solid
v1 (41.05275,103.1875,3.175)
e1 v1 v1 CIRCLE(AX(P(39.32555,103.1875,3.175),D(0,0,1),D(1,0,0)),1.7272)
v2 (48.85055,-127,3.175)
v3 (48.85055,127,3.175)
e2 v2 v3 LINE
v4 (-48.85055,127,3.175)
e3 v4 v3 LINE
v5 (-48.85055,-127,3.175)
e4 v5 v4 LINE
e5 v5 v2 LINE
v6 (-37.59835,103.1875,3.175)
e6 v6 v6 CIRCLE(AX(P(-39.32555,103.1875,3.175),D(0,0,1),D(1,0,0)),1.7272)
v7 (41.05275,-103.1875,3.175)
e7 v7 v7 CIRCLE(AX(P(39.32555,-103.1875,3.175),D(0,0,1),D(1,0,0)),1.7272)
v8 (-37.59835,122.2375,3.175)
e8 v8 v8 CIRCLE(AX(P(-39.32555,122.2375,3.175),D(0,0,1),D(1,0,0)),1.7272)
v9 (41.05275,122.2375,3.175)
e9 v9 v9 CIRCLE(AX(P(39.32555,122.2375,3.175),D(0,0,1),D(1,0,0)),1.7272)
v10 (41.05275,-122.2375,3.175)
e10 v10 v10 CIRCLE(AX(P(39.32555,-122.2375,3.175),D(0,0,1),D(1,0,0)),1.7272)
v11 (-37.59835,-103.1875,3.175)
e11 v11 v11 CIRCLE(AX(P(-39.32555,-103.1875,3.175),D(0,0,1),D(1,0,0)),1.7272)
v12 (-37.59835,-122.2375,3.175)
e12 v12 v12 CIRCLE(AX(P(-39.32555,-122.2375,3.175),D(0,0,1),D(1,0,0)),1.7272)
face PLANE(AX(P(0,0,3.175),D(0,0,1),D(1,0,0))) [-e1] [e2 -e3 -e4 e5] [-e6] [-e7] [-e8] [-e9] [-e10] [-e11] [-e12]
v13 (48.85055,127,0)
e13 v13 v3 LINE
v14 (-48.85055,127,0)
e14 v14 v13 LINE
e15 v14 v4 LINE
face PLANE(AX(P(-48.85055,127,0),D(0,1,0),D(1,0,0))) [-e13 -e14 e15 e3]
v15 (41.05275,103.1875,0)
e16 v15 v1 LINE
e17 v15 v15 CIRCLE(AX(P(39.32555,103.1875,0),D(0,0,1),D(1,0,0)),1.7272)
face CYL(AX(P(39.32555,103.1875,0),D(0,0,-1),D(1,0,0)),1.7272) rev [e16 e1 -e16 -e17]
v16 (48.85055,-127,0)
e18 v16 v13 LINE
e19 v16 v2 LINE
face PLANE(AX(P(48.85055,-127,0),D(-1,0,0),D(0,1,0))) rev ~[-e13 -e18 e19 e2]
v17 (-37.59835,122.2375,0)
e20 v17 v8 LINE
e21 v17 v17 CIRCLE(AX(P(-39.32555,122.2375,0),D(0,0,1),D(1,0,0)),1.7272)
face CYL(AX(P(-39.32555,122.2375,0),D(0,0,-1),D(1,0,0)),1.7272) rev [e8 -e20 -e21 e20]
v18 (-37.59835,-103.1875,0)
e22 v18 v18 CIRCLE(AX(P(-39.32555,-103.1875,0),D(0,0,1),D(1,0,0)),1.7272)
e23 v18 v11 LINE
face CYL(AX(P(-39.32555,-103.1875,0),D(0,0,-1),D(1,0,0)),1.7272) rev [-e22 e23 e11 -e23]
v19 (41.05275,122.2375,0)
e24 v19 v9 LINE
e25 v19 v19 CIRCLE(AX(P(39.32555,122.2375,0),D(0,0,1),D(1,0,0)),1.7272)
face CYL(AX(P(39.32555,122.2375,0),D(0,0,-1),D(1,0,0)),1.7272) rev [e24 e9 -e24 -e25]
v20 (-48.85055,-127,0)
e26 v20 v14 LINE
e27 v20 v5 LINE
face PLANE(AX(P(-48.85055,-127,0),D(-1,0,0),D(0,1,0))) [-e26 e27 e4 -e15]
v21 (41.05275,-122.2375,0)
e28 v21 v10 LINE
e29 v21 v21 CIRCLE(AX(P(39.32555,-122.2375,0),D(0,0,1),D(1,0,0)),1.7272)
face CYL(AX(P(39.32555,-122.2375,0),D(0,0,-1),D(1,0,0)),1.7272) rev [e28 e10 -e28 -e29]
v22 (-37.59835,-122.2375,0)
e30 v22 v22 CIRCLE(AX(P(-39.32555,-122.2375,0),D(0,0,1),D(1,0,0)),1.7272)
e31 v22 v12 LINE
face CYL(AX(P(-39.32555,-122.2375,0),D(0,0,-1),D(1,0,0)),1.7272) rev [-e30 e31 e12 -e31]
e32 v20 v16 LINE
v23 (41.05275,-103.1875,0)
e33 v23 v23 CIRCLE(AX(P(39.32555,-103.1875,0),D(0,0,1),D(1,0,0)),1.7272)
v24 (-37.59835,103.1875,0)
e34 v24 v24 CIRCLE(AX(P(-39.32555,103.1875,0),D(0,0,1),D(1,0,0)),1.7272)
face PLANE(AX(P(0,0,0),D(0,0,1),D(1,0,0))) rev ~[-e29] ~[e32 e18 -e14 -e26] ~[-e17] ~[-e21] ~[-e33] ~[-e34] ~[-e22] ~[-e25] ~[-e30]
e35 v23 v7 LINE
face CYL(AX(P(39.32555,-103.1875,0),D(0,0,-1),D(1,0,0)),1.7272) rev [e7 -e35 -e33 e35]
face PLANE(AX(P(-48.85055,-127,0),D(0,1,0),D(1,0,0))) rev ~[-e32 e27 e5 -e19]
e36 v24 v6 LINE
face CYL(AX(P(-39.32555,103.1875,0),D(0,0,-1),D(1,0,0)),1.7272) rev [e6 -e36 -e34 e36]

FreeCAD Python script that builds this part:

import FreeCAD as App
import Part
import Sketcher

V = App.Vector
Q = App.Units.Quantity

doc = App.newDocument("Part")
body = doc.addObject("PartDesign::Body", "Body")

# Sketch on XY plane
sketch1 = body.newObject("Sketcher::SketchObject", "Sketch")
sketch1.AttachmentSupport = (doc.getObject("XY_Plane"), [""])
sketch1.MapMode = "FlatFace"
sketch1.addGeometry(Part.LineSegment(V(-48.9, 127, 0), V(-48.9, -127, 0)), False)
sketch1.addGeometry(Part.LineSegment(V(-48.9, -127, 0), V(48.9, -127, 0)), False)
sketch1.addGeometry(Part.LineSegment(V(48.9, -127, 0), V(48.9, 127, 0)), False)
sketch1.addGeometry(Part.LineSegment(V(48.9, 127, 0), V(-48.9, 127, 0)), False)
sketch1.addGeometry(Part.Circle(V(-39.3, -122.2, 0), V(0, 0, 1), 1.7), False)
sketch1.addGeometry(Part.Circle(V(-39.3, -103.2, 0), V(0, 0, 1), 1.7), False)
sketch1.addGeometry(Part.Circle(V(39.3, -122.2, 0), V(0, 0, 1), 1.7), False)
sketch1.addGeometry(Part.Circle(V(39.3, -103.2, 0), V(0, 0, 1), 1.7), False)
sketch1.addGeometry(Part.Circle(V(-39.3, 103.2, 0), V(0, 0, 1), 1.7), False)
sketch1.addGeometry(Part.Circle(V(-39.3, 122.2, 0), V(0, 0, 1), 1.7), False)
sketch1.addGeometry(Part.Circle(V(39.3, 103.2, 0), V(0, 0, 1), 1.7), False)
sketch1.addGeometry(Part.Circle(V(39.3, 122.2, 0), V(0, 0, 1), 1.7), False)
sketch1.addConstraint(Sketcher.Constraint("Coincident", 0, 2, 1, 1))
sketch1.addConstraint(Sketcher.Constraint("Coincident", 1, 2, 2, 1))
sketch1.addConstraint(Sketcher.Constraint("Coincident", 2, 2, 3, 1))
sketch1.addConstraint(Sketcher.Constraint("Coincident", 3, 2, 0, 1))
sketch1.addConstraint(Sketcher.Constraint("Vertical", 0))
sketch1.addConstraint(Sketcher.Constraint("Horizontal", 1))
sketch1.addConstraint(Sketcher.Constraint("Vertical", 2))
sketch1.addConstraint(Sketcher.Constraint("Horizontal", 3))
sketch1.addConstraint(Sketcher.Constraint("Equal", 4, 5))
sketch1.addConstraint(Sketcher.Constraint("Equal", 5, 6))
sketch1.addConstraint(Sketcher.Constraint("Equal", 6, 7))
sketch1.addConstraint(Sketcher.Constraint("Equal", 7, 8))
sketch1.addConstraint(Sketcher.Constraint("Equal", 8, 9))
sketch1.addConstraint(Sketcher.Constraint("Equal", 9, 10))
sketch1.addConstraint(Sketcher.Constraint("Equal", 10, 11))
sketch1.addConstraint(Sketcher.Constraint("Symmetric", 7, 3, 8, 3, -1, 1))
sketch1.addConstraint(Sketcher.Constraint("Symmetric", 6, 3, 9, 3, -1, 1))
sketch1.addConstraint(Sketcher.Constraint("Symmetric", 5, 3, 10, 3, -1, 1))
sketch1.addConstraint(Sketcher.Constraint("Symmetric", 4, 3, 11, 3, -1, 1))
sketch1.addConstraint(Sketcher.Constraint("Symmetric", 0, 2, 2, 2, -1, 1))
sketch1.addConstraint(Sketcher.Constraint("Symmetric", 4, 3, 6, 3, -2))
sketch1.addConstraint(Sketcher.Constraint("Symmetric", 5, 3, 7, 3, -2))
sketch1.addConstraint(Sketcher.Constraint("Vertical", 4, 3, 5, 3))
sketch1.addConstraint(Sketcher.Constraint("DistanceY", 0, 2, 0, 1, Q("10 in")))
sketch1.addConstraint(Sketcher.Constraint("Diameter", 4, Q("0.136 in")))
sketch1.addConstraint(Sketcher.Constraint("DistanceY", 4, 3, 5, 3, Q("0.75 in")))
sketch1.addConstraint(Sketcher.Constraint("DistanceX", 1, 1, 1, 2, Q("3.8465 in")))
sketch1.addConstraint(Sketcher.Constraint("DistanceY", 4, 3, -1, 1, Q("4.8125 in")))
sketch1.addConstraint(Sketcher.Constraint("DistanceX", 0, 2, 4, 3, Q("0.375 in")))
pad1 = body.newObject("PartDesign::Pad", "Pad")
pad1.Profile = sketch1
pad1.Length = Q("0.125 in")

doc.recompute()
